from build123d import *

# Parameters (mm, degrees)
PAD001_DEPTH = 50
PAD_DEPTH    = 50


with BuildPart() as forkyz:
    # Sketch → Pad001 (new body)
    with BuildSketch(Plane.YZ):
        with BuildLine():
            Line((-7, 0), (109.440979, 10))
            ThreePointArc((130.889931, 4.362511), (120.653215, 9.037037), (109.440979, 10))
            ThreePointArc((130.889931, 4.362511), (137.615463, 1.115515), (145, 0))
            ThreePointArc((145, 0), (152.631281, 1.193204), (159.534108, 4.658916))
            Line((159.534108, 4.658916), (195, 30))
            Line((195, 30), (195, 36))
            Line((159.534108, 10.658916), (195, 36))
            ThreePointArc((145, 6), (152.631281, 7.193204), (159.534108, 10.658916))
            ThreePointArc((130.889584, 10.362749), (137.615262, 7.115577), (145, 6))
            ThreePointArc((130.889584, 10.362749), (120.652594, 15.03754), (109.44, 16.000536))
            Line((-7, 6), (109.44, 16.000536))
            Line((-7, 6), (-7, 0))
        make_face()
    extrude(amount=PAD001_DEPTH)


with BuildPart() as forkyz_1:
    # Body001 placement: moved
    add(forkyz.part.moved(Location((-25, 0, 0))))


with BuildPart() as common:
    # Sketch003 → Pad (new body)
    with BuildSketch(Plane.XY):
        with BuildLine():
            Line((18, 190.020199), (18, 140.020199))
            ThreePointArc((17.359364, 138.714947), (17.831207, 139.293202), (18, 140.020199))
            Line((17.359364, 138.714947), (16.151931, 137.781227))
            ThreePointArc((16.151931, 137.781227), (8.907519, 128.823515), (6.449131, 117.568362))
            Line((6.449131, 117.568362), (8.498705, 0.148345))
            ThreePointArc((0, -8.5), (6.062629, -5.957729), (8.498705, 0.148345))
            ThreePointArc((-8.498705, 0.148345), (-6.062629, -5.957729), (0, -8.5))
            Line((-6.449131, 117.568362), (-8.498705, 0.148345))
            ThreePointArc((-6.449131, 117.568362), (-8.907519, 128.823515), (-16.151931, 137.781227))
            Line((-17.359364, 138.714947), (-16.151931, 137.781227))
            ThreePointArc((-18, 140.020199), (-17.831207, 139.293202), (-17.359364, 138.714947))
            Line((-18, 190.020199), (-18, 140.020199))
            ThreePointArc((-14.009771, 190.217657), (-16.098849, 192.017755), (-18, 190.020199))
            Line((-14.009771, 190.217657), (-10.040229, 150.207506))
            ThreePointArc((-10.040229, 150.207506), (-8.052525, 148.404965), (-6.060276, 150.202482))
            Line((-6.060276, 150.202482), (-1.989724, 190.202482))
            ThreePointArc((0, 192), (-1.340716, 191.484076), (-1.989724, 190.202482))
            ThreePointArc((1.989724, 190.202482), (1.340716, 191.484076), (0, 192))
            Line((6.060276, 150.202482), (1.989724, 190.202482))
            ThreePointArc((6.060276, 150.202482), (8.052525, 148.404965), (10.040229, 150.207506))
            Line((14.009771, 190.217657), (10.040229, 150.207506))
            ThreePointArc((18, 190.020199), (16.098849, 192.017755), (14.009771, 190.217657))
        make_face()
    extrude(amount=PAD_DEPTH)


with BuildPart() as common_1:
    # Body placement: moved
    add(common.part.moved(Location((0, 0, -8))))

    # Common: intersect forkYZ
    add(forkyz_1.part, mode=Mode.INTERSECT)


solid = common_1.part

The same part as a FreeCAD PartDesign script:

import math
import FreeCAD as App
import Part
import Sketcher

V = App.Vector
Q = App.Units.Quantity

doc = App.newDocument("Part")
body = doc.addObject("PartDesign::Body", "Body")

# Sketch on YZ plane
sketch1 = doc.addObject("Sketcher::SketchObject", "Sketch")
body.addObject(sketch1)
sketch1.AttachmentSupport = (doc.YZ_Plane, [""])
sketch1.MapMode = "FlatFace"
sketch1.addGeometry(Part.LineSegment(V(-7, 0, 0), V(109, 10, 0)), False)
sketch1.addGeometry(Part.ArcOfCircle(Part.Circle(V(112, -23, 0), V(0, 0, 1), 33), math.radians(56), math.radians(95)), False)
sketch1.addGeometry(Part.ArcOfCircle(Part.Circle(V(145, 25, 0), V(0, 0, 1), 25), math.radians(-124), math.radians(-90)), False)
sketch1.addGeometry(Part.ArcOfCircle(Part.Circle(V(145, 25, 0), V(0, 0, 1), 25), math.radians(-90), math.radians(-54)), False)
sketch1.addGeometry(Part.LineSegment(V(160, 5, 0), V(195, 30, 0)), False)
sketch1.addGeometry(Part.LineSegment(V(195, 30, 0), V(195, 36, 0)), False)
sketch1.addGeometry(Part.LineSegment(V(195, 36, 0), V(160, 11, 0)), False)
sketch1.addGeometry(Part.ArcOfCircle(Part.Circle(V(145, 31, 0), V(0, 0, 1), 25), math.radians(-90), math.radians(-54)), False)
sketch1.addGeometry(Part.ArcOfCircle(Part.Circle(V(145, 31, 0), V(0, 0, 1), 25), math.radians(-124), math.radians(-90)), False)
sketch1.addGeometry(Part.ArcOfCircle(Part.Circle(V(112, -17, 0), V(0, 0, 1), 33), math.radians(56), math.radians(95)), False)
sketch1.addGeometry(Part.LineSegment(V(109, 16, 0), V(-7, 6, 0)), False)
sketch1.addGeometry(Part.LineSegment(V(-7, 6, 0), V(-7, 0, 0)), False)
sketch1.addConstraint(Sketcher.Constraint("Tangent", 0, 2, 1, 2))
sketch1.addConstraint(Sketcher.Constraint("Tangent", 1, 1, 2, 1))
sketch1.addConstraint(Sketcher.Constraint("Tangent", 2, 2, 3, 1))
sketch1.addConstraint(Sketcher.Constraint("Tangent", 3, 2, 4, 1))
sketch1.addConstraint(Sketcher.Constraint("Coincident", 4, 2, 5, 1))
sketch1.addConstraint(Sketcher.Constraint("Coincident", 5, 2, 6, 1))
sketch1.addConstraint(Sketcher.Constraint("Tangent", 6, 2, 7, 2))
sketch1.addConstraint(Sketcher.Constraint("Tangent", 7, 1, 8, 2))
sketch1.addConstraint(Sketcher.Constraint("Tangent", 8, 1, 9, 1))
sketch1.addConstraint(Sketcher.Constraint("Tangent", 9, 2, 10, 1))
sketch1.addConstraint(Sketcher.Constraint("Coincident", 10, 2, 11, 1))
sketch1.addConstraint(Sketcher.Constraint("Coincident", 11, 2, 0, 1))
sketch1.addConstraint(Sketcher.Constraint("Vertical", 5))
sketch1.addConstraint(Sketcher.Constraint("Vertical", 11))
sketch1.addConstraint(Sketcher.Constraint("Equal", 3, 7))
sketch1.addConstraint(Sketcher.Constraint("PointOnObject", 2, 2, -1))
sketch1.addConstraint(Sketcher.Constraint("PointOnObject", 11, 2, -1))
sketch1.addConstraint(Sketcher.Constraint("Parallel", 4, 6))
sketch1.addConstraint(Sketcher.Constraint("Horizontal", 7, 1, 10, 2))
sketch1.addConstraint(Sketcher.Constraint("Vertical", 3, 3, 7, 3))
sketch1.addConstraint(Sketcher.Constraint("Vertical", 7, 3, 2, 2))
sketch1.addConstraint(Sketcher.Constraint("Vertical", 2, 2, 7, 1))
sketch1.addConstraint(Sketcher.Constraint("DistanceY", 5, 1, 5, 2, Q("6 mm")))
sketch1.addConstraint(Sketcher.Constraint("DistanceX", -1, 1, 2, 3, Q("144.999999 mm")))
sketch1.addConstraint(Sketcher.Constraint("DistanceY", -1, 1, 0, 2, Q("10 mm")))
sketch1.addConstraint(Sketcher.Constraint("DistanceX", -1, 1, 4, 2, Q("195 mm")))
sketch1.addConstraint(Sketcher.Constraint("DistanceY", -1, 1, 4, 2, Q("30 mm")))
sketch1.addConstraint(Sketcher.Constraint("DistanceX", 10, 2, -1, 1, Q("7 mm")))
sketch1.addConstraint(Sketcher.Constraint("DistanceX", -1, 1, 9, 2, Q("109.44 mm")))
sketch1.addConstraint(Sketcher.Constraint("Radius", 1, Q("33.000008 mm")))
sketch1.addConstraint(Sketcher.Constraint("Radius", 2, Q("24.999995 mm")))
sketch1.addConstraint(Sketcher.Constraint("Radius", 3, Q("25.000004 mm")))
sketch1.addConstraint(Sketcher.Constraint("Radius", 8, Q("24.999986 mm")))
sketch1.addConstraint(Sketcher.Constraint("Radius", 9, Q("33.000003 mm")))
pad1 = doc.addObject("PartDesign::Pad", "Pad")
body.addObject(pad1)
pad1.Profile = sketch1
pad1.Length = 50
body2 = doc.addObject("PartDesign::Body", "Body001")
doc.recompute()

body.Placement = App.Placement(V(-25, 0, 0), App.Rotation(V(0, 0, 1), 0))
boolean = doc.addObject("PartDesign::Boolean", "Boolean")
body2.addObject(boolean)
boolean.Type = "Fuse"
boolean.addObjects([body])
body3 = doc.addObject("PartDesign::Body", "Body002")

# Sketch on XY plane
sketch2 = doc.addObject("Sketcher::SketchObject", "Sketch001")
body3.addObject(sketch2)
sketch2.AttachmentSupport = (doc.getObject("XY_Plane002"), [""])
sketch2.MapMode = "FlatFace"
sketch2.addGeometry(Part.LineSegment(V(18, 140, 0), V(18, 190, 0)), False)
sketch2.addGeometry(Part.ArcOfCircle(Part.Circle(V(16, 190, 0), V(0, 0, 1), 2), math.radians(0), math.radians(174)), False)
sketch2.addGeometry(Part.LineSegment(V(14, 190.2, 0), V(10, 150.2, 0)), False)
sketch2.addGeometry(Part.ArcOfCircle(Part.Circle(V(8.1, 150.4, 0), V(0, 0, 1), 2), math.radians(-174), math.radians(-6)), False)
sketch2.addGeometry(Part.LineSegment(V(6.1, 150.2, 0), V(2, 190.2, 0)), False)
sketch2.addGeometry(Part.ArcOfCircle(Part.Circle(V(0, 190, 0), V(0, 0, 1), 2), math.radians(6), math.radians(90)), False)
sketch2.addGeometry(Part.ArcOfCircle(Part.Circle(V(0, 190, 0), V(0, 0, 1), 2), math.radians(90), math.radians(174)), False)
sketch2.addGeometry(Part.LineSegment(V(-2, 190.2, 0), V(-6.1, 150.2, 0)), False)
sketch2.addGeometry(Part.ArcOfCircle(Part.Circle(V(-8.1, 150.4, 0), V(0, 0, 1), 2), math.radians(-174), math.radians(-6)), False)
sketch2.addGeometry(Part.LineSegment(V(-10, 150.2, 0), V(-14, 190.2, 0)), False)
sketch2.addGeometry(Part.ArcOfCircle(Part.Circle(V(-16, 190, 0), V(0, 0, 1), 2), math.radians(6), math.radians(180)), False)
sketch2.addGeometry(Part.LineSegment(V(-18, 190, 0), V(-18, 140, 0)), False)
sketch2.addGeometry(Part.ArcOfCircle(Part.Circle(V(-16.3, 140, 0), V(0, 0, 1), 1.7), math.radians(-180), math.radians(-128)), False)
sketch2.addGeometry(Part.LineSegment(V(-17.4, 138.7, 0), V(-16.2, 137.8, 0)), False)
sketch2.addGeometry(Part.ArcOfCircle(Part.Circle(V(-31.4, 118, 0), V(0, 0, 1), 25), math.radians(-1), math.radians(52)), False)
sketch2.addGeometry(Part.LineSegment(V(-6.4, 117.6, 0), V(-8.5, 0.1, 0)), False)
sketch2.addGeometry(Part.ArcOfCircle(Part.Circle(V(0, 0, 0), V(0, 0, 1), 8.5), math.radians(179), math.radians(270)), False)
sketch2.addGeometry(Part.ArcOfCircle(Part.Circle(V(0, 0, 0), V(0, 0, 1), 8.5), math.radians(-90), math.radians(1)), False)
sketch2.addGeometry(Part.LineSegment(V(8.5, 0.1, 0), V(6.4, 117.6, 0)), False)
sketch2.addGeometry(Part.ArcOfCircle(Part.Circle(V(31.4, 118, 0), V(0, 0, 1), 25), math.radians(128), math.radians(181)), False)
sketch2.addGeometry(Part.LineSegment(V(16.2, 137.8, 0), V(17.4, 138.7, 0)), False)
sketch2.addGeometry(Part.ArcOfCircle(Part.Circle(V(16.3, 140, 0), V(0, 0, 1), 1.7), math.radians(-52), math.radians(0)), False)
sketch2.addConstraint(Sketcher.Constraint("Tangent", 0, 2, 1, 1))
sketch2.addConstraint(Sketcher.Constraint("Tangent", 1, 2, 2, 1))
sketch2.addConstraint(Sketcher.Constraint("Tangent", 2, 2, 3, 2))
sketch2.addConstraint(Sketcher.Constraint("Tangent", 3, 1, 4, 1))
sketch2.addConstraint(Sketcher.Constraint("Tangent", 4, 2, 5, 1))
sketch2.addConstraint(Sketcher.Constraint("Tangent", 5, 2, 6, 1))
sketch2.addConstraint(Sketcher.Constraint("Tangent", 6, 2, 7, 1))
sketch2.addConstraint(Sketcher.Constraint("Tangent", 7, 2, 8, 2))
sketch2.addConstraint(Sketcher.Constraint("Tangent", 8, 1, 9, 1))
sketch2.addConstraint(Sketcher.Constraint("Tangent", 9, 2, 10, 1))
sketch2.addConstraint(Sketcher.Constraint("Tangent", 10, 2, 11, 1))
sketch2.addConstraint(Sketcher.Constraint("Tangent", 11, 2, 12, 1))
sketch2.addConstraint(Sketcher.Constraint("Tangent", 12, 2, 13, 1))
sketch2.addConstraint(Sketcher.Constraint("Tangent", 13, 2, 14, 2))
sketch2.addConstraint(Sketcher.Constraint("Tangent", 14, 1, 15, 1))
sketch2.addConstraint(Sketcher.Constraint("Tangent", 15, 2, 16, 1))
sketch2.addConstraint(Sketcher.Constraint("Tangent", 16, 2, 17, 1))
sketch2.addConstraint(Sketcher.Constraint("Tangent", 17, 2, 18, 1))
sketch2.addConstraint(Sketcher.Constraint("Tangent", 18, 2, 19, 2))
sketch2.addConstraint(Sketcher.Constraint("Tangent", 19, 1, 20, 1))
sketch2.addConstraint(Sketcher.Constraint("Tangent", 20, 2, 21, 1))
sketch2.addConstraint(Sketcher.Constraint("Tangent", 21, 2, 0, 1))
sketch2.addConstraint(Sketcher.Constraint("Vertical", 0))
sketch2.addConstraint(Sketcher.Constraint("Vertical", 11))
sketch2.addConstraint(Sketcher.Constraint("Coincident", 16, 3, -1, 1))
sketch2.addConstraint(Sketcher.Constraint("Equal", 1, 3))
sketch2.addConstraint(Sketcher.Constraint("Equal", 3, 5))
sketch2.addConstraint(Sketcher.Constraint("Equal", 5, 6))
sketch2.addConstraint(Sketcher.Constraint("Equal", 6, 8))
sketch2.addConstraint(Sketcher.Constraint("Equal", 8, 10))
sketch2.addConstraint(Sketcher.Constraint("Equal", 16, 17))
sketch2.addConstraint(Sketcher.Constraint("Equal", 14, 19))
sketch2.addConstraint(Sketcher.Constraint("Equal", 12, 21))
sketch2.addConstraint(Sketcher.Constraint("Symmetric", 3, 3, 8, 3, -2))
sketch2.addConstraint(Sketcher.Constraint("Symmetric", 1, 3, 10, 3, -2))
sketch2.addConstraint(Sketcher.Constraint("Symmetric", 14, 3, 19, 3, -2))
sketch2.addConstraint(Sketcher.Constraint("PointOnObject", 5, 3, -2))
sketch2.addConstraint(Sketcher.Constraint("PointOnObject", 5, 2, -2))
sketch2.addConstraint(Sketcher.Constraint("PointOnObject", 16, 2, -2))
sketch2.addConstraint(Sketcher.Constraint("Horizontal", 12, 3, 21, 3))
sketch2.addConstraint(Sketcher.Constraint("Equal", 2, 4))
sketch2.addConstraint(Sketcher.Constraint("Radius", 1, Q("2 mm")))
sketch2.addConstraint(Sketcher.Constraint("Radius", 14, Q("25 mm")))
sketch2.addConstraint(Sketcher.Constraint("Radius", 16, Q("8.499999 mm")))
sketch2.addConstraint(Sketcher.Constraint("DistanceY", 0, 1, 0, 2, Q("50 mm")))
sketch2.addConstraint(Sketcher.Constraint("Angle", 15, Q("-91 deg")))
sketch2.addConstraint(Sketcher.Constraint("Radius", 12, Q("1.650001 mm")))
sketch2.addConstraint(Sketcher.Constraint("DistanceX", -1, 1, 1, 3, Q("16 mm")))
sketch2.addConstraint(Sketcher.Constraint("DistanceY", -1, 1, 5, 3, Q("190 mm")))
sketch2.addConstraint(Sketcher.Constraint("DistanceX", 8, 3, 3, 3, Q("16.1 mm")))
sketch2.addConstraint(Sketcher.Constraint("DistanceX", 13, 2, 8, 1, Q("6.111702 mm")))
sketch2.addConstraint(Sketcher.Constraint("DistanceY", -1, 1, 3, 1, Q("150.202482 mm")))
pad2 = doc.addObject("PartDesign::Pad", "Pad001")
body3.addObject(pad2)
pad2.Profile = sketch2
pad2.Length = 50
body4 = doc.addObject("PartDesign::Body", "Body003")
doc.recompute()

body3.Placement = App.Placement(V(0, 0, -8), App.Rotation(V(0, 0, 1), 0))
boolean2 = doc.addObject("PartDesign::Boolean", "Boolean001")
body4.addObject(boolean2)
boolean2.Type = "Fuse"
boolean2.addObjects([body3])
doc.recompute()

boolean3 = doc.addObject("PartDesign::Boolean", "Boolean002")
body4.addObject(boolean3)
boolean3.Type = "Common"
boolean3.addObjects([body2])

doc.recompute()
